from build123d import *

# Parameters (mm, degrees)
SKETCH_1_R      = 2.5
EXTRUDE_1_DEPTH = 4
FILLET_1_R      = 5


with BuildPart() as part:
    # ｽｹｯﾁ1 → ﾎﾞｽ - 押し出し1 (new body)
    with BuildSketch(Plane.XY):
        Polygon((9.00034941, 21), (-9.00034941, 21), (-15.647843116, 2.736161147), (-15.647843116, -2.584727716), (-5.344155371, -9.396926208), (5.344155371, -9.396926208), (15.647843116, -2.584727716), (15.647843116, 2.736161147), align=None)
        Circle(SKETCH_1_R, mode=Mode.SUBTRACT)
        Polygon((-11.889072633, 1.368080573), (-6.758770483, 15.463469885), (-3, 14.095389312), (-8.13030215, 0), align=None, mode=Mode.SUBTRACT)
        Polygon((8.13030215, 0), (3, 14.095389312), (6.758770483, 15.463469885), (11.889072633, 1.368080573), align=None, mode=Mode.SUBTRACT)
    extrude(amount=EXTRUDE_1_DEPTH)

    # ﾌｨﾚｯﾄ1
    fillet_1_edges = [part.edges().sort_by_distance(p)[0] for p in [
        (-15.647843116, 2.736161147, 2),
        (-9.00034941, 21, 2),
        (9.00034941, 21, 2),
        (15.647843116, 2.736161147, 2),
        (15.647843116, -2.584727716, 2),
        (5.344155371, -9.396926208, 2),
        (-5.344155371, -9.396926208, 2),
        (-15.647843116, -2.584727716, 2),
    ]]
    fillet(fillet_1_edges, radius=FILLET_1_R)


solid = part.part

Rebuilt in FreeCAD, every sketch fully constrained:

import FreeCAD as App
import Part
import Sketcher

V = App.Vector
Q = App.Units.Quantity


def edges_at(feature, points):
    """Names of the edges that pass closest to the given points."""
    edges = feature.Shape.Edges
    near = lambda p: min(range(len(edges)), key=lambda i: edges[i].distToShape(Part.Vertex(*p))[0])
    return sorted({f"Edge{near(p) + 1}" for p in points})

doc = App.newDocument("Part")
body = doc.addObject("PartDesign::Body", "Body")

# Sketch on XY plane
sketch1 = body.newObject("Sketcher::SketchObject", "Sketch")
sketch1.AttachmentSupport = (doc.getObject("XY_Plane"), [""])
sketch1.MapMode = "FlatFace"
sketch1.addGeometry([
    Part.LineSegment(V(9, 21, 0), V(-9, 21, 0)),  # 0
    Part.LineSegment(V(-9, 21, 0), V(-15.6, 2.7, 0)),  # 1
    Part.LineSegment(V(-15.6, 2.7, 0), V(-15.6, -2.6, 0)),  # 2
    Part.LineSegment(V(-15.6, -2.6, 0), V(-5.3, -9.4, 0)),  # 3
    Part.LineSegment(V(-5.3, -9.4, 0), V(5.3, -9.4, 0)),  # 4
    Part.LineSegment(V(5.3, -9.4, 0), V(15.6, -2.6, 0)),  # 5
    Part.LineSegment(V(15.6, -2.6, 0), V(15.6, 2.7, 0)),  # 6
    Part.LineSegment(V(15.6, 2.7, 0), V(9, 21, 0)),  # 7
    Part.Circle(V(0, 0, 0), V(0, 0, 1), 2.5),  # 8
    Part.LineSegment(V(-8.1, 0, 0), V(-11.9, 1.4, 0)),  # 9
    Part.LineSegment(V(-11.9, 1.4, 0), V(-6.8, 15.5, 0)),  # 10
    Part.LineSegment(V(-6.8, 15.5, 0), V(-3, 14.1, 0)),  # 11
    Part.LineSegment(V(-3, 14.1, 0), V(-8.1, 0, 0)),  # 12
    Part.LineSegment(V(11.9, 1.4, 0), V(8.1, 0, 0)),  # 13
    Part.LineSegment(V(8.1, 0, 0), V(3, 14.1, 0)),  # 14
    Part.LineSegment(V(3, 14.1, 0), V(6.8, 15.5, 0)),  # 15
    Part.LineSegment(V(6.8, 15.5, 0), V(11.9, 1.4, 0)),  # 16
], False)
sketch1.addConstraint([
    Sketcher.Constraint("Coincident", 0, 2, 1, 1),
    Sketcher.Constraint("Coincident", 1, 2, 2, 1),
    Sketcher.Constraint("Coincident", 2, 2, 3, 1),
    Sketcher.Constraint("Coincident", 3, 2, 4, 1),
    Sketcher.Constraint("Coincident", 4, 2, 5, 1),
    Sketcher.Constraint("Coincident", 5, 2, 6, 1),
    Sketcher.Constraint("Coincident", 6, 2, 7, 1),
    Sketcher.Constraint("Coincident", 7, 2, 0, 1),
    Sketcher.Constraint("Coincident", 9, 2, 10, 1),
    Sketcher.Constraint("Coincident", 10, 2, 11, 1),
    Sketcher.Constraint("Coincident", 11, 2, 12, 1),
    Sketcher.Constraint("Coincident", 12, 2, 9, 1),
    Sketcher.Constraint("Coincident", 13, 2, 14, 1),
    Sketcher.Constraint("Coincident", 14, 2, 15, 1),
    Sketcher.Constraint("Coincident", 15, 2, 16, 1),
    Sketcher.Constraint("Coincident", 16, 2, 13, 1),
    Sketcher.Constraint("Horizontal", 0),
    Sketcher.Constraint("Vertical", 2),
    Sketcher.Constraint("Horizontal", 4),
    Sketcher.Constraint("Vertical", 6),
    Sketcher.Constraint("Coincident", 8, 3, -1, 1),
    Sketcher.Constraint("Symmetric", 12, 2, 13, 2, -1, 1),
    Sketcher.Constraint("Symmetric", 2, 2, 5, 2, -2),
    Sketcher.Constraint("Symmetric", 11, 2, 14, 2, -2),
    Sketcher.Constraint("Symmetric", 10, 2, 15, 2, -2),
    Sketcher.Constraint("Symmetric", 9, 2, 16, 2, -2),
    Sketcher.Constraint("PointOnObject", 12, 2, -1),
    Sketcher.Constraint("Perpendicular", 1, 9),
    Sketcher.Constraint("Perpendicular", 9, 10),
    Sketcher.Constraint("Perpendicular", 10, 11),
    Sketcher.Constraint("Perpendicular", 11, 12),
    Sketcher.Constraint("Perpendicular", 7, 13),
    Sketcher.Constraint("Horizontal", 1, 2, 6, 2),
    Sketcher.Constraint("Equal", 3, 5),
    Sketcher.Constraint("Diameter", 8, 5.0),
    Sketcher.Constraint("Angle", 1, Q("-110 deg")),
    Sketcher.Constraint("Distance", 9, 4.0),
    Sketcher.Constraint("Distance", 10, 15.0),
    Sketcher.Constraint("DistanceY", -1, 1, 0, 2, 21.0),
    Sketcher.Constraint("DistanceX", 11, 2, -1, 1, 3.0),
    Sketcher.Constraint("DistanceX", 0, 2, 0, 1, 18.000699),
    Sketcher.Constraint("DistanceX", 2, 2, 4, 2, 20.991998),
    Sketcher.Constraint("DistanceX", 4, 1, 4, 2, 10.688311),
    Sketcher.Constraint("DistanceY", 2, 2, 2, 1, 5.320889),
    Sketcher.Constraint("DistanceY", 3, 2, 2, 2, 6.812198),
])
pad1 = body.newObject("PartDesign::Pad", "Pad")
pad1.Profile = sketch1
pad1.Length = 4
doc.recompute()

fillet = body.newObject("PartDesign::Fillet", "Fillet")
fillet.Base = (pad1, edges_at(pad1, [
    (-15.648, 2.736, 2),
    (-9, 21, 2),
    (9, 21, 2),
    (15.648, 2.736, 2),
    (15.648, -2.585, 2),
    (5.344, -9.397, 2),
    (-5.344, -9.397, 2),
    (-15.648, -2.585, 2),
]))
fillet.Radius = 5

doc.recompute()
